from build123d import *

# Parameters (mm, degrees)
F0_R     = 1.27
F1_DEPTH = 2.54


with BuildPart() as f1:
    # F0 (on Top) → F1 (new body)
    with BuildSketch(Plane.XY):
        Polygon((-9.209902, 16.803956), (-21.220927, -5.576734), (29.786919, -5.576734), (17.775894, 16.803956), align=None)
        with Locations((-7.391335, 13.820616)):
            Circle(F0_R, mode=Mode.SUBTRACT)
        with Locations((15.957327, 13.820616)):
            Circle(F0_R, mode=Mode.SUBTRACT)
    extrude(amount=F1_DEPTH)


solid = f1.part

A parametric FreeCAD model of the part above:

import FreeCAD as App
import Part
import Sketcher

V = App.Vector
Q = App.Units.Quantity


def add_polygon(sketch, points):
    """Adds a closed chain of lines whose ends are joined by coincident constraints."""
    first, n = sketch.GeometryCount, len(points)
    for a, b in zip(points, points[1:] + points[:1]):
        sketch.addGeometry(Part.LineSegment(App.Vector(*a, 0), App.Vector(*b, 0)), False)
    for i in range(n):
        sketch.addConstraint(Sketcher.Constraint("Coincident", first + i, 2, first + (i + 1) % n, 1))

doc = App.newDocument("Part")
body = doc.addObject("PartDesign::Body", "Body")

# Sketch on XY plane
sketch1 = doc.addObject("Sketcher::SketchObject", "Sketch")
body.addObject(sketch1)
sketch1.AttachmentSupport = (doc.XY_Plane, [""])
sketch1.MapMode = "FlatFace"
add_polygon(sketch1, [(-9.2, 16.8), (-21.2, -5.6), (29.8, -5.6), (17.8, 16.8)])  # lines 0-3
sketch1.addGeometry(Part.Circle(V(-7.4, 13.8, 0), V(0, 0, 1), 1.3), False)  # 4
sketch1.addGeometry(Part.Circle(V(16, 13.8, 0), V(0, 0, 1), 1.3), False)  # 5
sketch1.addConstraint([
    Sketcher.Constraint("Horizontal", 1),
    Sketcher.Constraint("Horizontal", 3),
    Sketcher.Constraint("Equal", 4, 5),
    Sketcher.Constraint("Horizontal", 4, 3, 5, 3),
    Sketcher.Constraint("Equal", 0, 2),
    Sketcher.Constraint("Diameter", 4, Q("0.1 in")),
    Sketcher.Constraint("Distance", 0, Q("1 in")),
    Sketcher.Constraint("DistanceX", 1, 1, 1, 2, 51.007846),
    Sketcher.Constraint("DistanceX", 3, 2, 3, 1, 26.985796),
    Sketcher.Constraint("DistanceX", -1, 1, 1, 2, 29.786919),
    Sketcher.Constraint("DistanceX", 4, 3, 5, 3, 23.348662),
    Sketcher.Constraint("DistanceY", 0, 2, 4, 3, 19.39735),
    Sketcher.Constraint("DistanceX", 4, 3, 2, 2, 25.167229),
    Sketcher.Constraint("DistanceY", -1, 1, 4, 3, 13.820616),
])
pad1 = doc.addObject("PartDesign::Pad", "Pad")
body.addObject(pad1)
pad1.Profile = sketch1
pad1.Length = Q("0.1 in")

doc.recompute()
